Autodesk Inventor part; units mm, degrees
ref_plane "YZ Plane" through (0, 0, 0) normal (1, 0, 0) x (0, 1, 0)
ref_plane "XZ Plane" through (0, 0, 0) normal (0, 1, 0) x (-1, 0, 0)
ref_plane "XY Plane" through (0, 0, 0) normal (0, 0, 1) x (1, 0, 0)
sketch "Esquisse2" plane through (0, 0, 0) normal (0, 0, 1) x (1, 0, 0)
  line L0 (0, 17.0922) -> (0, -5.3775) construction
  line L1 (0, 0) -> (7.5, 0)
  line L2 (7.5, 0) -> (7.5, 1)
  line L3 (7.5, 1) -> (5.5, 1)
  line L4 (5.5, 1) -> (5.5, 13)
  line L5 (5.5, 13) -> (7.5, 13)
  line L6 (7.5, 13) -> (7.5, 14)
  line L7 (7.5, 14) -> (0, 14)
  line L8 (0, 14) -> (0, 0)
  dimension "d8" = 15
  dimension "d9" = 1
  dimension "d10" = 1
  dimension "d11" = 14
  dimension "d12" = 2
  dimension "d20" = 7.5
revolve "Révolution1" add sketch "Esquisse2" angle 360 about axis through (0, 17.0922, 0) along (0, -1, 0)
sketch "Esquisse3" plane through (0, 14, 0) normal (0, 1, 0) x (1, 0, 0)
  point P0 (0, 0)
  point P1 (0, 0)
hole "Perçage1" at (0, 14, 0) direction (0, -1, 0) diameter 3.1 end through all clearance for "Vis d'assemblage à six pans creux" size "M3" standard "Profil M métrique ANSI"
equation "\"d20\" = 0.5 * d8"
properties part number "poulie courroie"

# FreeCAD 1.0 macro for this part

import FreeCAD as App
import Part
import Sketcher

V = App.Vector

doc = App.newDocument("Part")
body = doc.addObject("PartDesign::Body", "Body")

# Sketch on XY plane
sketch1 = body.newObject("Sketcher::SketchObject", "Sketch")
sketch1.AttachmentSupport = (doc.getObject("XY_Plane"), [""])
sketch1.MapMode = "FlatFace"
sketch1.addGeometry([
    Part.LineSegment(V(0, 14, 0), V(0, 0, 0)),  # 0
    Part.LineSegment(V(0, 0, 0), V(7.5, 0, 0)),  # 1
    Part.LineSegment(V(7.5, 0, 0), V(7.5, 1, 0)),  # 2
    Part.LineSegment(V(7.5, 1, 0), V(5.5, 1, 0)),  # 3
    Part.LineSegment(V(5.5, 1, 0), V(5.5, 13, 0)),  # 4
    Part.LineSegment(V(5.5, 13, 0), V(7.5, 13, 0)),  # 5
    Part.LineSegment(V(7.5, 13, 0), V(7.5, 14, 0)),  # 6
    Part.LineSegment(V(7.5, 14, 0), V(0, 14, 0)),  # 7
], False)
sketch1.addConstraint([
    Sketcher.Constraint("Coincident", 0, 2, 1, 1),
    Sketcher.Constraint("Coincident", 1, 2, 2, 1),
    Sketcher.Constraint("Coincident", 2, 2, 3, 1),
    Sketcher.Constraint("Coincident", 3, 2, 4, 1),
    Sketcher.Constraint("Coincident", 4, 2, 5, 1),
    Sketcher.Constraint("Coincident", 5, 2, 6, 1),
    Sketcher.Constraint("Coincident", 6, 2, 7, 1),
    Sketcher.Constraint("Coincident", 7, 2, 0, 1),
    Sketcher.Constraint("Vertical", 0),
    Sketcher.Constraint("Horizontal", 1),
    Sketcher.Constraint("Vertical", 2),
    Sketcher.Constraint("Horizontal", 3),
    Sketcher.Constraint("Vertical", 4),
    Sketcher.Constraint("Horizontal", 5),
    Sketcher.Constraint("Vertical", 6),
    Sketcher.Constraint("Horizontal", 7),
    Sketcher.Constraint("Coincident", 0, 2, -1, 1),
    Sketcher.Constraint("Vertical", 2, 2, 5, 2),
    Sketcher.Constraint("Equal", 2, 6),
    Sketcher.Constraint("DistanceX", 3, 2, 3, 1, 2.0),
    Sketcher.Constraint("DistanceY", 0, 2, 0, 1, 14.0),
    Sketcher.Constraint("DistanceY", 2, 1, 2, 2, 1.0),
    Sketcher.Constraint("DistanceX", 1, 1, 1, 2, 7.5),
])
revolution = body.newObject("PartDesign::Revolution", "Revolution")
revolution.Profile = sketch1
revolution.ReferenceAxis = (sketch1, ["V_Axis"])
revolution.Angle = 360

# Sketch on XZ plane
sketch2 = body.newObject("Sketcher::SketchObject", "Sketch001")
sketch2.AttachmentSupport = (doc.getObject("XZ_Plane"), [""])
sketch2.MapMode = "FlatFace"
sketch2.AttachmentOffset = App.Placement(V(0, 0, -14), App.Rotation())
sketch2.addGeometry(Part.Circle(V(0, 0, 0), V(0, 0, 1), 1.6), False)
sketch2.addConstraint([
    Sketcher.Constraint("Coincident", 0, 3, -1, 1),
    Sketcher.Constraint("Diameter", 0, 3.1),
])
doc.recompute()
hole = body.newObject("PartDesign::Hole", "Hole")
hole.Profile = sketch2
hole.ThreadType = "None"
hole.Diameter = 3.1
hole.DepthType = "ThroughAll"
hole.Reversed = True

doc.recompute()
